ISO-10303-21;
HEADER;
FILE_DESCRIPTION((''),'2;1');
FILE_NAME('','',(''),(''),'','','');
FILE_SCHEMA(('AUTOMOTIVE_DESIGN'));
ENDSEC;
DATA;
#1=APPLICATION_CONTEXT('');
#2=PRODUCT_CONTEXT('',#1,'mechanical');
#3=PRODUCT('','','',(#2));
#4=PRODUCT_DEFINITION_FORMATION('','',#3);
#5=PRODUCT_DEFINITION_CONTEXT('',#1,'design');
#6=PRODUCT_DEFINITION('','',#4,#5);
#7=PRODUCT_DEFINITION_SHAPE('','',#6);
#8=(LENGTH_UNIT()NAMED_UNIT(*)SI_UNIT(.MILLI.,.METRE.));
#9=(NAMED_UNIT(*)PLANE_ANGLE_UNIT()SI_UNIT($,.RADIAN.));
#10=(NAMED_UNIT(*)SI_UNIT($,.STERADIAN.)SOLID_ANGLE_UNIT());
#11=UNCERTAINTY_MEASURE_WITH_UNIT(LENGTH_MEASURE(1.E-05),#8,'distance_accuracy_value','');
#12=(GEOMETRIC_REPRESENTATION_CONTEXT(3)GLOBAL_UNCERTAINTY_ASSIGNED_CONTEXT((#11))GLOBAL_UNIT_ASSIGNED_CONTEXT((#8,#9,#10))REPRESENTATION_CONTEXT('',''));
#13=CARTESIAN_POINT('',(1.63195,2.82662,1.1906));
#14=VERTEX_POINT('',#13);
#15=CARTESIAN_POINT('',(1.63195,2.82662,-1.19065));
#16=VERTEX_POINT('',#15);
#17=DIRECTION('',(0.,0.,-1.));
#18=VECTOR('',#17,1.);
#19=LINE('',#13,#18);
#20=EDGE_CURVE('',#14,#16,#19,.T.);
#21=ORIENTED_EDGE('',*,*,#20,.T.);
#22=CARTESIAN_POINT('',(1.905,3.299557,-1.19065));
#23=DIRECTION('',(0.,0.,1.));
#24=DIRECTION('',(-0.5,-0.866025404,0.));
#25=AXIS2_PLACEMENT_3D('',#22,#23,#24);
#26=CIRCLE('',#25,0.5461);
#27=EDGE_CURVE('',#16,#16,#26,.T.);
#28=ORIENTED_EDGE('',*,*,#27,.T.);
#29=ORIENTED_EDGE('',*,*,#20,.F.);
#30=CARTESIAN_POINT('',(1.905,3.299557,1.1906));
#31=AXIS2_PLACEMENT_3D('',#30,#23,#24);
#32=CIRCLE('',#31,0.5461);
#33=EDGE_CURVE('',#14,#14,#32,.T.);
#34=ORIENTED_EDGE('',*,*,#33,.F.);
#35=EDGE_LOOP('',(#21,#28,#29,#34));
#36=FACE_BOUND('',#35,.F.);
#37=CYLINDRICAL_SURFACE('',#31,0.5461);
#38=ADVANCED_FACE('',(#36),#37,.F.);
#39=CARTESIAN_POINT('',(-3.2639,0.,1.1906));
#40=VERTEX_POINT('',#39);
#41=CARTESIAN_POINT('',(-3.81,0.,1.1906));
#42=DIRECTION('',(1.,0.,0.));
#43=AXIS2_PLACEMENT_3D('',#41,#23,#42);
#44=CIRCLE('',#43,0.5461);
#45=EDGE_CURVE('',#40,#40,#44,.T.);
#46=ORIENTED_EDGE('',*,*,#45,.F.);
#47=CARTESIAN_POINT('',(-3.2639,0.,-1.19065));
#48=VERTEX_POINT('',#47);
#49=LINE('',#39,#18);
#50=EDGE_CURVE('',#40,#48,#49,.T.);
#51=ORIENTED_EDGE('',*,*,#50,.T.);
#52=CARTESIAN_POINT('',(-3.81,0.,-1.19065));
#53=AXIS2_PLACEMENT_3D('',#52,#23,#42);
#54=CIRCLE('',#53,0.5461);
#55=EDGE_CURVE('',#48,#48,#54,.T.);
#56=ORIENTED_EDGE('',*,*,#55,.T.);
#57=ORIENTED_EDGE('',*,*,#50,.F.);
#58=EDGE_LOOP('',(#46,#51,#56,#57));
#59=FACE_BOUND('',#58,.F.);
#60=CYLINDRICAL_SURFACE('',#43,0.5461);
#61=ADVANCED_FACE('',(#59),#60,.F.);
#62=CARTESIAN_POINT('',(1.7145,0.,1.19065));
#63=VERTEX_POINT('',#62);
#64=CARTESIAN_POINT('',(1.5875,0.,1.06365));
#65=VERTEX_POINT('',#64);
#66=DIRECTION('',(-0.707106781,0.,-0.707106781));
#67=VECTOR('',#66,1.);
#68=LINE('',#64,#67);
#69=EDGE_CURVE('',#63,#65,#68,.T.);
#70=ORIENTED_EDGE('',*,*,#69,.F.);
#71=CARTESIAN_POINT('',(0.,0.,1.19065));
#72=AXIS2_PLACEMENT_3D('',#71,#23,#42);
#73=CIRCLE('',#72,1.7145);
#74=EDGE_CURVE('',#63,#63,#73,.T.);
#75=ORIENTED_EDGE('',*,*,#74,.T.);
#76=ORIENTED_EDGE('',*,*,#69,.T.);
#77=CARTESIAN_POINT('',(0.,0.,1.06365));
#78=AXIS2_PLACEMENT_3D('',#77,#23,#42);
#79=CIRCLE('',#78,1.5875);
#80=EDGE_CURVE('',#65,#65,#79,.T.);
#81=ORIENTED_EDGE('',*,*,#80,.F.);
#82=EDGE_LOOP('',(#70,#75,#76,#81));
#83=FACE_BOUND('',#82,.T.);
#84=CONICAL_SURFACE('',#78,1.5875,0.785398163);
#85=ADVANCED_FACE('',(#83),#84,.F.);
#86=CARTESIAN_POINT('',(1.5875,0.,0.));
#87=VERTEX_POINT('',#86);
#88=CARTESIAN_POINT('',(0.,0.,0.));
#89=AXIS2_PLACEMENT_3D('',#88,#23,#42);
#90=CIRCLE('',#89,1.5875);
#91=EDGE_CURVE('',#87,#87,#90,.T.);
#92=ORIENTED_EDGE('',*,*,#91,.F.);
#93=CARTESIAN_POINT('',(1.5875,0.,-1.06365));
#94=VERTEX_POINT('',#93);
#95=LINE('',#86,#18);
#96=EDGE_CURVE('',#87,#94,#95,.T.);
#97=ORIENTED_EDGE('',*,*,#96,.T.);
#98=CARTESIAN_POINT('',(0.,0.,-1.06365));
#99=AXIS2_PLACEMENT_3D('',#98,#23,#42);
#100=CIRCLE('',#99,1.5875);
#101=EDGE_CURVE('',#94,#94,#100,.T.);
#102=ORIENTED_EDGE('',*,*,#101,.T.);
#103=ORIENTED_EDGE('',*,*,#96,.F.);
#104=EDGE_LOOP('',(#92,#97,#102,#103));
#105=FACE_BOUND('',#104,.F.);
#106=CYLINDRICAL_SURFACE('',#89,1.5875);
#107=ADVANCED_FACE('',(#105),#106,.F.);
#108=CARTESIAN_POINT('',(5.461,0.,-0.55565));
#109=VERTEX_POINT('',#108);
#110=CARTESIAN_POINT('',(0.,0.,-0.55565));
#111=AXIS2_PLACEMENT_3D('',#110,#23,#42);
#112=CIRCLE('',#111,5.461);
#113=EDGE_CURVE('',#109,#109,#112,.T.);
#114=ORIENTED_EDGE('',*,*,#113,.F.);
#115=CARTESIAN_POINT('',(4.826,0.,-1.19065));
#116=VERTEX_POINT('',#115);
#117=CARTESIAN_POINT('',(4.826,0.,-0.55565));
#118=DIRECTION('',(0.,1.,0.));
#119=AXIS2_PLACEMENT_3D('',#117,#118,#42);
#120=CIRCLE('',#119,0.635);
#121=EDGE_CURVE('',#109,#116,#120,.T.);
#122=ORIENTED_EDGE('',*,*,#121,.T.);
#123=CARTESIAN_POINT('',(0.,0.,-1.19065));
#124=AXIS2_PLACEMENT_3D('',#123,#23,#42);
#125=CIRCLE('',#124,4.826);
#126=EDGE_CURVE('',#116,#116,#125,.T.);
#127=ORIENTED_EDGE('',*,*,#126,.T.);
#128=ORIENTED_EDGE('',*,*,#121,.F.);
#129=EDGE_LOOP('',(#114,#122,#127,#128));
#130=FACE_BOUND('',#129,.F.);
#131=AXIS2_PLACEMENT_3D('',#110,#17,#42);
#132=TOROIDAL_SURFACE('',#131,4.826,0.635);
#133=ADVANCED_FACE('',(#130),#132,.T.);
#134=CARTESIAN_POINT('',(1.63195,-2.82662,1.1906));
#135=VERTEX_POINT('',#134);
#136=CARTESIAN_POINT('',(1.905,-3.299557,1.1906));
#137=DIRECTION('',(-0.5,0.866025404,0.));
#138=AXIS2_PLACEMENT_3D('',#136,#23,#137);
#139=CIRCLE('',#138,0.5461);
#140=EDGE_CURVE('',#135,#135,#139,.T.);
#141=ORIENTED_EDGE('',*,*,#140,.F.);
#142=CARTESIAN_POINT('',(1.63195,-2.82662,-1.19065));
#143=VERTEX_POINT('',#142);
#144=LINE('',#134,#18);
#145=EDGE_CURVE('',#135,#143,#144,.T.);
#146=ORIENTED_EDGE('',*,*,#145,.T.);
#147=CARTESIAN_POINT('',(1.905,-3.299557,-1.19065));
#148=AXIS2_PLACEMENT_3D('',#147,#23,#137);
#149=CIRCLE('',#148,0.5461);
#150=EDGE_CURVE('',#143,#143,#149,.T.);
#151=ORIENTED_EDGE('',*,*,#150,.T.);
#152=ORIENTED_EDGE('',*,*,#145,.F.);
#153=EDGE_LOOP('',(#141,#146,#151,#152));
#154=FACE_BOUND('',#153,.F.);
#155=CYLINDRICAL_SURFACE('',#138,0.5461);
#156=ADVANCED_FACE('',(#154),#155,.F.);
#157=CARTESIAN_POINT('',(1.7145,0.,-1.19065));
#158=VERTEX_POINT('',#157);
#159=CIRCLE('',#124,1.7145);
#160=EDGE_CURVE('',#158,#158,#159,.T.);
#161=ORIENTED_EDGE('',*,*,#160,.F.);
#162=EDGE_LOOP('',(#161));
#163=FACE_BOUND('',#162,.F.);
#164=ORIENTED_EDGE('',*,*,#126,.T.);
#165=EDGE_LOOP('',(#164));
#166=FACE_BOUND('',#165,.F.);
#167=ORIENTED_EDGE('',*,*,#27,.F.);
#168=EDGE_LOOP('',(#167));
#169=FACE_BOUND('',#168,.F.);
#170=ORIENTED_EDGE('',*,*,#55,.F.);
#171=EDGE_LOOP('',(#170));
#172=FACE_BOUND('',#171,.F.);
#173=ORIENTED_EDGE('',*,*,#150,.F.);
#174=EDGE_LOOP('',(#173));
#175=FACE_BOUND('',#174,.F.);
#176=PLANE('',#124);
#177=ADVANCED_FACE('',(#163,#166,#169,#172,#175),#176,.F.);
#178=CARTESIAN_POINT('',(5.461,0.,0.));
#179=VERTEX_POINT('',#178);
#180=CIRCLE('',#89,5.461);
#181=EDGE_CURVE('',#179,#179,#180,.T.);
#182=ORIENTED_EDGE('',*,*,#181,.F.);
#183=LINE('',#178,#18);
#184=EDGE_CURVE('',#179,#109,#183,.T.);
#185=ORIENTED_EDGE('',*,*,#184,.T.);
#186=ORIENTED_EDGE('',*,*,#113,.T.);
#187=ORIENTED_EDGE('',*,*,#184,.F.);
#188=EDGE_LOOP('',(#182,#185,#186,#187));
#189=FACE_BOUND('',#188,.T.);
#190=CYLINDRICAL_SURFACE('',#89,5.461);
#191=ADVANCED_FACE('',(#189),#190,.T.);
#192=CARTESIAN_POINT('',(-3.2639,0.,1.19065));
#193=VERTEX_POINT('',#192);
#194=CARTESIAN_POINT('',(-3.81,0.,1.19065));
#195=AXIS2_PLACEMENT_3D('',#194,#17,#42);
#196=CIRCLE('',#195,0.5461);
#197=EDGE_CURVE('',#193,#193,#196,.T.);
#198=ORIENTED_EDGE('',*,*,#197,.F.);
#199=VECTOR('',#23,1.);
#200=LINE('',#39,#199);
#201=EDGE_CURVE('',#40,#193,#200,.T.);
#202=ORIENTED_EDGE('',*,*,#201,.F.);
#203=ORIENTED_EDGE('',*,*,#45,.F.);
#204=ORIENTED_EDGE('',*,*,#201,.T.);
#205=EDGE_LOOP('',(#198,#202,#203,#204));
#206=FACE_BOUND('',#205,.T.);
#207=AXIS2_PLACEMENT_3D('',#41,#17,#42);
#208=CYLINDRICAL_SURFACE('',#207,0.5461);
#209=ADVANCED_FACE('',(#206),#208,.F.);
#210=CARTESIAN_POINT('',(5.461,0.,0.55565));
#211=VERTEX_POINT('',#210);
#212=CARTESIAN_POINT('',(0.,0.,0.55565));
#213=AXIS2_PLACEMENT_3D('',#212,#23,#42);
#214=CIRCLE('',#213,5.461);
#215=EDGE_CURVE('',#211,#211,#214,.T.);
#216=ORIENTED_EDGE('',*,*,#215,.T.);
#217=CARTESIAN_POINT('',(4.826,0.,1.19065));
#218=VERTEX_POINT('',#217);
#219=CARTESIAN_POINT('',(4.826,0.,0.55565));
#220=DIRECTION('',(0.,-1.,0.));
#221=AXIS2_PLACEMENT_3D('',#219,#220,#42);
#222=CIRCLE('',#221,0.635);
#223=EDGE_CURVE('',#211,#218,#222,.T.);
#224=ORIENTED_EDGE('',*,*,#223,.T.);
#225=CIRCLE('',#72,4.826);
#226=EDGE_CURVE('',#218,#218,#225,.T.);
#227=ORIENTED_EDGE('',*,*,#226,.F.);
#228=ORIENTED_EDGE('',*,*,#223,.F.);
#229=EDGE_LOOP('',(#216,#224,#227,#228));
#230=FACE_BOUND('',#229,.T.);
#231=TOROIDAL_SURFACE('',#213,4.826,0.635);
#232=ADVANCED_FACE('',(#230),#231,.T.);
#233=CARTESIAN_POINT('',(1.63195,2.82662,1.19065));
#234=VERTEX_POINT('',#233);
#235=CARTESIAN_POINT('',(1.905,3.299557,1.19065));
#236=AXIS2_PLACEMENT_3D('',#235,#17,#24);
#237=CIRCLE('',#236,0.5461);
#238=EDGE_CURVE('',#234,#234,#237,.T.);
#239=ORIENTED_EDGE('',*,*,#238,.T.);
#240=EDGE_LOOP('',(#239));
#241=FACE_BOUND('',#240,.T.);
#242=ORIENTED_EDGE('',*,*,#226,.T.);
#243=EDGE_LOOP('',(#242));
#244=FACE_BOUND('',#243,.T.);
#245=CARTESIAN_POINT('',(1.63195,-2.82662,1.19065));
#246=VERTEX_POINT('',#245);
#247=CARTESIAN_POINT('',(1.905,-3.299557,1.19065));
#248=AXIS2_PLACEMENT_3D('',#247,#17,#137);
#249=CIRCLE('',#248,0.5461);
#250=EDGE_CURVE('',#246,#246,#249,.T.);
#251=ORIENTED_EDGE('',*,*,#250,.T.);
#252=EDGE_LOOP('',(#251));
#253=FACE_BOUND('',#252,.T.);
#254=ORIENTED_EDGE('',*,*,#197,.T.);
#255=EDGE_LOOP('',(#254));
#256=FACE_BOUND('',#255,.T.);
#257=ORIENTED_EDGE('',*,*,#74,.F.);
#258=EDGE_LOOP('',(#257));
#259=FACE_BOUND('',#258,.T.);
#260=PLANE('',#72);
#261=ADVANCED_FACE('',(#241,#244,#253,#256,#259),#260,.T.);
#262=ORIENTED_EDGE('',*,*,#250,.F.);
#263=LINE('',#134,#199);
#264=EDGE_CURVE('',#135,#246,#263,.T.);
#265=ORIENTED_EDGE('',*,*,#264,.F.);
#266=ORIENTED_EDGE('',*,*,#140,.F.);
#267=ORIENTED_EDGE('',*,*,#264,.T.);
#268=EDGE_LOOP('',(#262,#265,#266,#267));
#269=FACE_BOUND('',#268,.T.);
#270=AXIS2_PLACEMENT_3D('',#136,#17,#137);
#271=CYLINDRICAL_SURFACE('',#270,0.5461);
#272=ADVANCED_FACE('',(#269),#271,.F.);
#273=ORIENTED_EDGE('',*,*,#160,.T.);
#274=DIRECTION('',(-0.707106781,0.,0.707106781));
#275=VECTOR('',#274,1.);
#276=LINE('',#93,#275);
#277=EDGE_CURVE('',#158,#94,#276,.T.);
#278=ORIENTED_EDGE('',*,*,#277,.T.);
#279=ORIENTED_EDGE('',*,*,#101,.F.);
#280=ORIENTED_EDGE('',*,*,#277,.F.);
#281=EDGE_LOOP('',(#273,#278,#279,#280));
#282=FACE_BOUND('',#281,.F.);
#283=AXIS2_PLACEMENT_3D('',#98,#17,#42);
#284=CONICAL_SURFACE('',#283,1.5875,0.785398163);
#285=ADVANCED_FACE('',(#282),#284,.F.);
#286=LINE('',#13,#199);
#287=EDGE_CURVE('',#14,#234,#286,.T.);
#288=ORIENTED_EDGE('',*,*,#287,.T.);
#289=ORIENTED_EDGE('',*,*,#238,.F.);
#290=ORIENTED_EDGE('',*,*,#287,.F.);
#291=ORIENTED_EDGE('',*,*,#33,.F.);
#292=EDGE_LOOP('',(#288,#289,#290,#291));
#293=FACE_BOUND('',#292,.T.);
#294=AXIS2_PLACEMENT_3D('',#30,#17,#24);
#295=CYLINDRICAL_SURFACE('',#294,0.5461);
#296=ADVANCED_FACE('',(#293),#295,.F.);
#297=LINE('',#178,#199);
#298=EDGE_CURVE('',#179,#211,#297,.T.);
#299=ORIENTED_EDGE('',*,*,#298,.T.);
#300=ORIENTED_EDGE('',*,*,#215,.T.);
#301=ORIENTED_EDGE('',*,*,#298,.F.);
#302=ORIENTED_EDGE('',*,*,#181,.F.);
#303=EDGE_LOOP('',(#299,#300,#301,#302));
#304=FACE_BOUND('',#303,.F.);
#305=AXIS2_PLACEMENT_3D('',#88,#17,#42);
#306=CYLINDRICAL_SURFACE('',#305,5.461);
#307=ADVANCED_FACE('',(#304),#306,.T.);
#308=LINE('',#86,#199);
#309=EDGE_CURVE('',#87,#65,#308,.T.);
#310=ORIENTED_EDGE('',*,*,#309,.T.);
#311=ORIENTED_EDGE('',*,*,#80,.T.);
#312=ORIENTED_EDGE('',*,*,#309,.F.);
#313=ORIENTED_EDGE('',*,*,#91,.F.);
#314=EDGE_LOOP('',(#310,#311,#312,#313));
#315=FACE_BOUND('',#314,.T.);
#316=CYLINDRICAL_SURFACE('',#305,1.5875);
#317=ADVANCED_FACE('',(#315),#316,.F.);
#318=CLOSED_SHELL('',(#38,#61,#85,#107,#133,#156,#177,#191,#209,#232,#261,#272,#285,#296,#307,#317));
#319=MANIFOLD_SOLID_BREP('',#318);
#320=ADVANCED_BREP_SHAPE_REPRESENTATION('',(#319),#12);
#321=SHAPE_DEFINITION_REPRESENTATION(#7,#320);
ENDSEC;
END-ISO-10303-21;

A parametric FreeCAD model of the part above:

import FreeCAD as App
import Part
import Sketcher
from FreeCAD import Vector
Q = App.Units.Quantity


def edges_at(feature, points):
    """Names of the edges that pass closest to the given points."""
    edges = feature.Shape.Edges
    near = lambda p: min(range(len(edges)), key=lambda i: edges[i].distToShape(Part.Vertex(*p))[0])
    return sorted({f"Edge{near(p) + 1}" for p in points})

doc = App.newDocument("Part")
body = doc.addObject("PartDesign::Body", "Body")

sketch1 = body.newObject("Sketcher::SketchObject", "Sketch")
sketch1.AttachmentSupport = (doc.getObject("XY_Plane"), [""])
sketch1.MapMode = "FlatFace"
sketch1.addGeometry([
    Part.Circle(Vector(0, 0, 0), Vector(0, 0, 1), 5.5),
    Part.Circle(Vector(0, 0, 0), Vector(0, 0, 1), 1.6),
], False)
sketch1.addConstraint([
    Sketcher.Constraint("Coincident", 0, 3, -1, 1),
    Sketcher.Constraint("Coincident", 1, 3, -1, 1),
    Sketcher.Constraint("Diameter", 0, Q("0.43 in")),
    Sketcher.Constraint("Diameter", 1, Q("0.125 in")),
])
pad1 = body.newObject("PartDesign::Pad", "Pad")
pad1.Profile = sketch1
pad1.Length = Q("0.093752 in")
pad1.Midplane = True
doc.recompute()

fillet = body.newObject("PartDesign::Fillet", "Fillet")
fillet.Base = (pad1, edges_at(pad1, [(-5.461, 0, 1.191), (-5.461, 0, -1.191)]))
fillet.Radius = Q("0.025 in")
doc.recompute()

chamfer = body.newObject("PartDesign::Chamfer", "Chamfer")
chamfer.Base = (fillet, edges_at(fillet, [(-1.587, 0, 1.191), (-1.587, 0, -1.191)]))
chamfer.Size = Q("0.005 in")

sketch2 = body.newObject("Sketcher::SketchObject", "Sketch001")
sketch2.AttachmentSupport = (doc.getObject("XY_Plane"), [""])
sketch2.MapMode = "FlatFace"
sketch2.AttachmentOffset = App.Placement(Vector(0, 0, 0.046874 * 25.4), App.Rotation())
sketch2.addGeometry(Part.Circle(Vector(-3.8, 0, 0), Vector(0, 0, 1), 0.5), False)
sketch2.addConstraint([
    Sketcher.Constraint("PointOnObject", 0, 3, -1),
    Sketcher.Constraint("Diameter", 0, Q("0.043 in")),
    Sketcher.Constraint("DistanceX", 0, 3, -1, 1, Q("0.15 in")),
])
pocket1 = body.newObject("PartDesign::Pocket", "Pocket")
pocket1.Profile = sketch2
pocket1.Type = "ThroughAll"
pocket1.Midplane = True
doc.recompute()

polarpattern = body.newObject("PartDesign::PolarPattern", "PolarPattern")
polarpattern.Originals = [pocket1]
polarpattern.Axis = (doc.getObject("Z_Axis"), [""])
polarpattern.Angle = 360
polarpattern.Occurrences = 3
body.Tip = polarpattern

doc.recompute()
